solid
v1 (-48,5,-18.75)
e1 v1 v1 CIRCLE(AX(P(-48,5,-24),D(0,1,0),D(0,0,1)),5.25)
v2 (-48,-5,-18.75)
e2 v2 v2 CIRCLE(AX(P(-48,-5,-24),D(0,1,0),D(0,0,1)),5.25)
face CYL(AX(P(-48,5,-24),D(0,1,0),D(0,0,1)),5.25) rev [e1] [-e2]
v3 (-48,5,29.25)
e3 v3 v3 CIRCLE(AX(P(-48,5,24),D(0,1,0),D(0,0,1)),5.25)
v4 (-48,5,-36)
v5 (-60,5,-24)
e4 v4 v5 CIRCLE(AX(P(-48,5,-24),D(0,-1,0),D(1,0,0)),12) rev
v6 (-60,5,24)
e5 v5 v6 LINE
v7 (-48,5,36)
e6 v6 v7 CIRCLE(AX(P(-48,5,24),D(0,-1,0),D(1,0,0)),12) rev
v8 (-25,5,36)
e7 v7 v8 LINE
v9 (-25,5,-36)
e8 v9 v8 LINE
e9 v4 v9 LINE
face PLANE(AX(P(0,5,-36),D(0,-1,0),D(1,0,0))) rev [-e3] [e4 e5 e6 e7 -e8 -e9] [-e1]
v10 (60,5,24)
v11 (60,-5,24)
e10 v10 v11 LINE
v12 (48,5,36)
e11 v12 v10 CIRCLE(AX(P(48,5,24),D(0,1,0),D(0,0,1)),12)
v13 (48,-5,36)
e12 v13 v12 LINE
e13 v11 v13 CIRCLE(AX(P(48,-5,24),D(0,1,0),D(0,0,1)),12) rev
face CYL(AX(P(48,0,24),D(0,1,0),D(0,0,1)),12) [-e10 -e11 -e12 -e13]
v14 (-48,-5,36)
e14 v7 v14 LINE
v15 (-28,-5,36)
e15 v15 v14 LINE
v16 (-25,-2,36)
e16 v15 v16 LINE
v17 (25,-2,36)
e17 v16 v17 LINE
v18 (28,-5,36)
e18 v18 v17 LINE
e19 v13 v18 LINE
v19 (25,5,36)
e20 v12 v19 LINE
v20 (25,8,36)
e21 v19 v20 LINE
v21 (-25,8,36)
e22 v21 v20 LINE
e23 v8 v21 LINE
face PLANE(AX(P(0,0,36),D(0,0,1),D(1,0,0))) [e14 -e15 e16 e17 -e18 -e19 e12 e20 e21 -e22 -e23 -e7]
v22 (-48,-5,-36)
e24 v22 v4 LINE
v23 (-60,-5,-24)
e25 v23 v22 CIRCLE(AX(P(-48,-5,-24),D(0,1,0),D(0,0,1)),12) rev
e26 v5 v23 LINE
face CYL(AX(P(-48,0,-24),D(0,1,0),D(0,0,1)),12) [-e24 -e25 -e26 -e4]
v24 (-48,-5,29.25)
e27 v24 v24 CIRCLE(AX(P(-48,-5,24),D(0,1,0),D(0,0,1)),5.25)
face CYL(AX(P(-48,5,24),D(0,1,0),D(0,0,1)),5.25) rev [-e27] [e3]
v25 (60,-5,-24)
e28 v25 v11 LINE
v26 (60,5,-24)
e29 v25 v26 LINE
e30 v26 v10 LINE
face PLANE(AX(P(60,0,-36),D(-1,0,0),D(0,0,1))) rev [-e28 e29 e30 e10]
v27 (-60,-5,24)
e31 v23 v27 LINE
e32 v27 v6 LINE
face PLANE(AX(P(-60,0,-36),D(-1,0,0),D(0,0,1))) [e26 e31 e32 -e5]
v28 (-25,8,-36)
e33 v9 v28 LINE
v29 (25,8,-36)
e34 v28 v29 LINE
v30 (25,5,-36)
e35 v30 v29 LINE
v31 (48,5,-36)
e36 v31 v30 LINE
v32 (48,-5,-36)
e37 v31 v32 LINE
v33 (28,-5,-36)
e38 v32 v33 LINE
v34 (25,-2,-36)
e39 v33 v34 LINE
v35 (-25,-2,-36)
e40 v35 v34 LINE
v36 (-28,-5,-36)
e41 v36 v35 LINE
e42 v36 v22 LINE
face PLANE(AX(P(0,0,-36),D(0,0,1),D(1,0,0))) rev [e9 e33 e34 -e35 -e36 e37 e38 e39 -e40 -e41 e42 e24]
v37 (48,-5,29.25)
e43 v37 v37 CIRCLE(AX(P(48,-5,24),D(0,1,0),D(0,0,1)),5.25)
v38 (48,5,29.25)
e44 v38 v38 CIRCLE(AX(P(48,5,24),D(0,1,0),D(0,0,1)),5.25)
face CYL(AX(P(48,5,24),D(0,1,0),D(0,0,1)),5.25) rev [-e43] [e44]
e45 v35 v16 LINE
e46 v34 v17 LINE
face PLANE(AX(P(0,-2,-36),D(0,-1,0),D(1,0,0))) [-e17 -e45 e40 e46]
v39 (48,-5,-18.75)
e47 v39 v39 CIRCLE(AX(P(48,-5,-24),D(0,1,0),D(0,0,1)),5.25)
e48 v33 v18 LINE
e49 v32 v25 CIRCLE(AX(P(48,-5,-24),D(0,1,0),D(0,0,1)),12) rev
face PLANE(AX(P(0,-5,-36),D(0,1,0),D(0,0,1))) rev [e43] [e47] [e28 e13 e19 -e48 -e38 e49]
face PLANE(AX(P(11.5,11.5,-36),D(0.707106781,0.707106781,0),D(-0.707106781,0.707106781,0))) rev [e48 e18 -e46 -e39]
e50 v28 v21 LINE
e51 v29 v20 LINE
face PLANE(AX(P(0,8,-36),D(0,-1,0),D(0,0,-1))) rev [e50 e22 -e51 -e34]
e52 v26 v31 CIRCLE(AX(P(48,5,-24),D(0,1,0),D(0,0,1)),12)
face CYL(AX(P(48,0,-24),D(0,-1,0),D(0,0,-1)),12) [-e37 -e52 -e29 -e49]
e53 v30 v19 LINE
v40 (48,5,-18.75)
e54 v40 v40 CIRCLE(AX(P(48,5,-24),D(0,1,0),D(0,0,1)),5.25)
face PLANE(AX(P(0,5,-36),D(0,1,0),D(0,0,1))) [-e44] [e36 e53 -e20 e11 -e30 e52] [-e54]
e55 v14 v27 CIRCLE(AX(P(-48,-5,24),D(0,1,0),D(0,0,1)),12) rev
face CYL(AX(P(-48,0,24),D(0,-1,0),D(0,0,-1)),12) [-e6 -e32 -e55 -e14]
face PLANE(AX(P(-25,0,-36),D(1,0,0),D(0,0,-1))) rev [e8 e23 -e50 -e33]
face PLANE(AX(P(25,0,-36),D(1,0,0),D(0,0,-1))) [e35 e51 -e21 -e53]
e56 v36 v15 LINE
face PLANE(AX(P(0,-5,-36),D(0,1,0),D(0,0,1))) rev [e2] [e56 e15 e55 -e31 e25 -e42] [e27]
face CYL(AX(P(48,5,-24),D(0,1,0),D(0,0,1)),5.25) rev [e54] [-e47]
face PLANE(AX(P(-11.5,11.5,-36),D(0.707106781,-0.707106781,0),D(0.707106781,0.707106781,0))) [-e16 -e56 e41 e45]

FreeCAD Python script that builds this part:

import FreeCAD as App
import Part
import Sketcher
from FreeCAD import Vector
Q = App.Units.Quantity


def edges_at(feature, points):
    """Names of the edges that pass closest to the given points."""
    edges = feature.Shape.Edges
    near = lambda p: min(range(len(edges)), key=lambda i: edges[i].distToShape(Part.Vertex(*p))[0])
    return sorted({f"Edge{near(p) + 1}" for p in points})


def add_polygon(sketch, points):
    """Adds a closed chain of lines whose ends are joined by coincident constraints."""
    first, n = sketch.GeometryCount, len(points)
    for a, b in zip(points, points[1:] + points[:1]):
        sketch.addGeometry(Part.LineSegment(App.Vector(*a, 0), App.Vector(*b, 0)), False)
    for i in range(n):
        sketch.addConstraint(Sketcher.Constraint("Coincident", first + i, 2, first + (i + 1) % n, 1))

doc = App.newDocument("Part")
params = doc.addObject("Spreadsheet::Sheet", "Params")
for row, (alias, value) in enumerate([
    ("sketch1_width", "35 mm"),
    ("sketch1_width2", "32 mm"),
    ("sketch1_width3", "50 mm"),
    ("sketch1_height", "3 mm"),
    ("sketch1_height2", "10 mm"),
    ("pad1_length", "36 mm"),
    ("pad1_length2", "36 mm"),
    ("fillet_radius", "12 mm"),
    ("sketch2_diameter", "10.5 mm"),
    ("hole_diameter", "10.5 mm"),
], start=1):
    params.set(f"A{row}", alias)
    params.set(f"B{row}", "=" + value)
    params.setAlias(f"B{row}", alias)

body = doc.addObject("PartDesign::Body", "Body")

sketch1 = body.newObject("Sketcher::SketchObject", "Sketch")
sketch1.AttachmentSupport = (doc.getObject("XY_Plane"), [""])
sketch1.MapMode = "FlatFace"
add_polygon(sketch1, [(-25, 8), (-25, 5), (-60, 5), (-60, -5), (-28, -5), (-25, -2), (25, -2), (28, -5), (60, -5), (60, 5), (25, 5), (25, 8)])
sketch1.addConstraint([
    Sketcher.Constraint("Vertical", 0),
    Sketcher.Constraint("Horizontal", 1),
    Sketcher.Constraint("Vertical", 2),
    Sketcher.Constraint("Horizontal", 3),
    Sketcher.Constraint("Horizontal", 5),
    Sketcher.Constraint("Horizontal", 7),
    Sketcher.Constraint("Vertical", 8),
    Sketcher.Constraint("Horizontal", 9),
    Sketcher.Constraint("Vertical", 10),
    Sketcher.Constraint("Horizontal", 11),
    Sketcher.Constraint("Symmetric", 1, 2, 7, 2, -1, 1),
    Sketcher.Constraint("Symmetric", 3, 2, 6, 2, -2),
    Sketcher.Constraint("Symmetric", 0, 2, 9, 2, -2),
    Sketcher.Constraint("Perpendicular", 4, 6),
    Sketcher.Constraint("Vertical", 0, 2, 4, 2),
    Sketcher.Constraint("Vertical", 5, 2, 9, 2),
    Sketcher.Constraint("DistanceX", 1, 2, 1, 1, Q("35 mm")),
    Sketcher.Constraint("DistanceX", 3, 1, 3, 2, Q("32 mm")),
    Sketcher.Constraint("DistanceX", 5, 1, 5, 2, Q("50 mm")),
    Sketcher.Constraint("DistanceY", 0, 2, 0, 1, Q("3 mm")),
    Sketcher.Constraint("DistanceY", 2, 2, 2, 1, Q("10 mm")),
])
sketch1.setExpression("Constraints[28]", "Params.sketch1_width")
sketch1.setExpression("Constraints[29]", "Params.sketch1_width2")
sketch1.setExpression("Constraints[30]", "Params.sketch1_width3")
sketch1.setExpression("Constraints[31]", "Params.sketch1_height")
sketch1.setExpression("Constraints[32]", "Params.sketch1_height2")
pad1 = body.newObject("PartDesign::Pad", "Pad")
pad1.Profile = sketch1
pad1.Type = "TwoLengths"
pad1.setExpression("Length", "Params.pad1_length")
pad1.setExpression("Length2", "Params.pad1_length2")
doc.recompute()

fillet = body.newObject("PartDesign::Fillet", "Fillet")
fillet.Base = (pad1, edges_at(pad1, [
    (-60, 0, -36),
    (60, 0, 36),
    (-60, 0, 36),
    (60, 0, -36),
]))
fillet.setExpression("Radius", "Params.fillet_radius")

sketch2 = body.newObject("Sketcher::SketchObject", "Sketch001")
sketch2.AttachmentSupport = (doc.getObject("XZ_Plane"), [""])
sketch2.MapMode = "FlatFace"
sketch2.AttachmentOffset = App.Placement(Vector(0, 0, -5), App.Rotation())
sketch2.addGeometry([
    Part.Circle(Vector(-48, 24, 0), Vector(0, 0, 1), 5.25),
    Part.Circle(Vector(-48, -24, 0), Vector(0, 0, 1), 5.25),
    Part.Circle(Vector(48, -24, 0), Vector(0, 0, 1), 5.25),
    Part.Circle(Vector(48, 24, 0), Vector(0, 0, 1), 5.25),
], False)
sketch2.addConstraint([
    Sketcher.Constraint("Equal", 0, 1),
    Sketcher.Constraint("Equal", 1, 2),
    Sketcher.Constraint("Equal", 2, 3),
    Sketcher.Constraint("Symmetric", 0, 3, 2, 3, -1, 1),
    Sketcher.Constraint("Symmetric", 1, 3, 3, 3, -1, 1),
    Sketcher.Constraint("Symmetric", 1, 3, 2, 3, -2),
    Sketcher.Constraint("Diameter", 0, Q("10.5 mm")),
    Sketcher.Constraint("DistanceX", 0, 3, -1, 1, Q("48 mm")),
    Sketcher.Constraint("DistanceY", -1, 1, 0, 3, Q("24 mm")),
])
sketch2.setExpression("Constraints[6]", "Params.sketch2_diameter")
doc.recompute()
hole = body.newObject("PartDesign::Hole", "Hole")
hole.Profile = sketch2
hole.ThreadType = "None"
hole.setExpression("Diameter", "Params.hole_diameter")
hole.DepthType = "ThroughAll"
hole.Reversed = True

doc.recompute()
